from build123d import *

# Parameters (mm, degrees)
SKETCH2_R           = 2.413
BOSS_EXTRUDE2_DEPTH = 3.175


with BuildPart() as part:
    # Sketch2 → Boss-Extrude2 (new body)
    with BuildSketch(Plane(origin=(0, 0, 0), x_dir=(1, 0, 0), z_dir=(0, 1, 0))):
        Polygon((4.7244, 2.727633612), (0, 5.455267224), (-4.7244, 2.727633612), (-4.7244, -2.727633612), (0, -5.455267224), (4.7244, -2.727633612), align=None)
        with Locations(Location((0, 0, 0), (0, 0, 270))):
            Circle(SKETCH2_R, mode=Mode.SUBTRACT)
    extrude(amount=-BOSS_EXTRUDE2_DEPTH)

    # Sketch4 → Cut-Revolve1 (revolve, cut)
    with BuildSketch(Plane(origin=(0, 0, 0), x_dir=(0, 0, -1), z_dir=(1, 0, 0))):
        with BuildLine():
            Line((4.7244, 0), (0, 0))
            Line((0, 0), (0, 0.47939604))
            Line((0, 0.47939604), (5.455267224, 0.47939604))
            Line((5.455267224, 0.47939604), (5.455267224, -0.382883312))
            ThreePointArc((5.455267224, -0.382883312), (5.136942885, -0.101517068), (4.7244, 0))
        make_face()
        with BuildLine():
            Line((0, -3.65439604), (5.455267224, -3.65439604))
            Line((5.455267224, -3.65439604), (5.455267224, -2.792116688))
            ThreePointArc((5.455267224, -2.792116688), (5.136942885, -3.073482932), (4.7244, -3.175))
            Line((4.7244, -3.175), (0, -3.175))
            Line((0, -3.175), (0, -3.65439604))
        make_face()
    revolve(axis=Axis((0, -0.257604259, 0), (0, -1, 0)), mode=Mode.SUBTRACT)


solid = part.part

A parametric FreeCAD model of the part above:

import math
import FreeCAD as App
import Part
import Sketcher
Q = App.Units.Quantity


def add_polygon(sketch, points):
    """Adds a closed chain of lines whose ends are joined by coincident constraints."""
    first, n = sketch.GeometryCount, len(points)
    for a, b in zip(points, points[1:] + points[:1]):
        sketch.addGeometry(Part.LineSegment(App.Vector(*a, 0), App.Vector(*b, 0)), False)
    for i in range(n):
        sketch.addConstraint(Sketcher.Constraint("Coincident", first + i, 2, first + (i + 1) % n, 1))

doc = App.newDocument("Part")
body = doc.addObject("PartDesign::Body", "Body")

# Sketch on XZ plane
sketch1 = body.newObject("Sketcher::SketchObject", "Sketch")
sketch1.AttachmentSupport = (doc.getObject("XZ_Plane"), [""])
sketch1.MapMode = "FlatFace"
add_polygon(sketch1, [(4.7, -2.7), (0, -5.5), (-4.7, -2.7), (-4.7, 2.7), (0, 5.5), (4.7, 2.7)])  # lines 0-5
sketch1.addGeometry(Part.Circle(App.Vector(0, 0, 0), App.Vector(0, 0, 1), 2.4), False)  # 6
sketch1.addConstraint([
    Sketcher.Constraint("Vertical", 2),
    Sketcher.Constraint("Vertical", 5),
    Sketcher.Constraint("Coincident", 6, 3, -1, 1),
    Sketcher.Constraint("Symmetric", 0, 2, 3, 2, -1, 1),
    Sketcher.Constraint("Symmetric", 1, 2, 4, 2, -1, 1),
    Sketcher.Constraint("PointOnObject", 0, 2, -2),
    Sketcher.Constraint("Parallel", 0, 3),
    Sketcher.Constraint("Horizontal", 2, 2, 4, 2),
    Sketcher.Constraint("Diameter", 6, Q("0.19 in")),
    Sketcher.Constraint("Angle", 0, Q("-150 deg")),
    Sketcher.Constraint("DistanceX", 1, 2, -1, 1, Q("0.186 in")),
    Sketcher.Constraint("DistanceY", 0, 2, 2, 2, 8.182901),
])
pad1 = body.newObject("PartDesign::Pad", "Pad")
pad1.Profile = sketch1
pad1.Length = Q("0.125 in")

# Sketch on YZ plane
sketch2 = body.newObject("Sketcher::SketchObject", "Sketch001")
sketch2.AttachmentSupport = (doc.getObject("YZ_Plane"), [""])
sketch2.MapMode = "FlatFace"
sketch2.addGeometry([
    Part.LineSegment(App.Vector(0, 0, 0), App.Vector(0, -4.72, 0)),  # 0
    Part.ArcOfCircle(Part.Circle(App.Vector(-0.89, -4.72, 0), App.Vector(0, 0, 1), 0.89), math.radians(-55), math.radians(0)),  # 1
    Part.LineSegment(App.Vector(-0.38, -5.46, 0), App.Vector(0.48, -5.46, 0)),  # 2
    Part.LineSegment(App.Vector(0.48, -5.46, 0), App.Vector(0.48, 0, 0)),  # 3
    Part.LineSegment(App.Vector(0.48, 0, 0), App.Vector(0, 0, 0)),  # 4
    Part.LineSegment(App.Vector(-3.65, 0, 0), App.Vector(-3.65, -5.46, 0)),  # 5
    Part.LineSegment(App.Vector(-3.65, -5.46, 0), App.Vector(-2.79, -5.46, 0)),  # 6
    Part.ArcOfCircle(Part.Circle(App.Vector(-2.29, -4.72, 0), App.Vector(0, 0, 1), 0.89), math.radians(180), math.radians(235)),  # 7
    Part.LineSegment(App.Vector(-3.17, -4.72, 0), App.Vector(-3.17, 0, 0)),  # 8
    Part.LineSegment(App.Vector(-3.17, 0, 0), App.Vector(-3.65, 0, 0)),  # 9
], False)
sketch2.addConstraint([
    Sketcher.Constraint("Tangent", 0, 2, 1, 2),
    Sketcher.Constraint("Coincident", 1, 1, 2, 1),
    Sketcher.Constraint("Coincident", 2, 2, 3, 1),
    Sketcher.Constraint("Coincident", 3, 2, 4, 1),
    Sketcher.Constraint("Coincident", 4, 2, 0, 1),
    Sketcher.Constraint("Coincident", 5, 2, 6, 1),
    Sketcher.Constraint("Coincident", 6, 2, 7, 2),
    Sketcher.Constraint("Tangent", 7, 1, 8, 1),
    Sketcher.Constraint("Coincident", 8, 2, 9, 1),
    Sketcher.Constraint("Coincident", 9, 2, 5, 1),
    Sketcher.Constraint("Vertical", 0),
    Sketcher.Constraint("Horizontal", 2),
    Sketcher.Constraint("Vertical", 3),
    Sketcher.Constraint("Horizontal", 4),
    Sketcher.Constraint("Vertical", 5),
    Sketcher.Constraint("Horizontal", 6),
    Sketcher.Constraint("Vertical", 8),
    Sketcher.Constraint("Horizontal", 9),
    Sketcher.Constraint("Coincident", 4, 2, -1, 1),
    Sketcher.Constraint("Equal", 1, 7),
    Sketcher.Constraint("PointOnObject", 8, 2, -1),
    Sketcher.Constraint("Horizontal", 1, 3, 7, 3),
    Sketcher.Constraint("Horizontal", 2, 2, 5, 2),
    Sketcher.Constraint("Equal", 2, 6),
    Sketcher.Constraint("Radius", 1, Q("0.035 in")),
    Sketcher.Constraint("DistanceY", 0, 2, 0, 1, Q("0.186 in")),
    Sketcher.Constraint("DistanceX", 7, 3, -1, 1, Q("0.09 in")),
    Sketcher.Constraint("DistanceX", 2, 1, 2, 2, 0.862279),
    Sketcher.Constraint("DistanceX", 4, 2, 4, 1, 0.479396),
])
groove = body.newObject("PartDesign::Groove", "Groove")
groove.Profile = sketch2
groove.ReferenceAxis = (sketch2, ["H_Axis"])
groove.Angle = 360

doc.recompute()
